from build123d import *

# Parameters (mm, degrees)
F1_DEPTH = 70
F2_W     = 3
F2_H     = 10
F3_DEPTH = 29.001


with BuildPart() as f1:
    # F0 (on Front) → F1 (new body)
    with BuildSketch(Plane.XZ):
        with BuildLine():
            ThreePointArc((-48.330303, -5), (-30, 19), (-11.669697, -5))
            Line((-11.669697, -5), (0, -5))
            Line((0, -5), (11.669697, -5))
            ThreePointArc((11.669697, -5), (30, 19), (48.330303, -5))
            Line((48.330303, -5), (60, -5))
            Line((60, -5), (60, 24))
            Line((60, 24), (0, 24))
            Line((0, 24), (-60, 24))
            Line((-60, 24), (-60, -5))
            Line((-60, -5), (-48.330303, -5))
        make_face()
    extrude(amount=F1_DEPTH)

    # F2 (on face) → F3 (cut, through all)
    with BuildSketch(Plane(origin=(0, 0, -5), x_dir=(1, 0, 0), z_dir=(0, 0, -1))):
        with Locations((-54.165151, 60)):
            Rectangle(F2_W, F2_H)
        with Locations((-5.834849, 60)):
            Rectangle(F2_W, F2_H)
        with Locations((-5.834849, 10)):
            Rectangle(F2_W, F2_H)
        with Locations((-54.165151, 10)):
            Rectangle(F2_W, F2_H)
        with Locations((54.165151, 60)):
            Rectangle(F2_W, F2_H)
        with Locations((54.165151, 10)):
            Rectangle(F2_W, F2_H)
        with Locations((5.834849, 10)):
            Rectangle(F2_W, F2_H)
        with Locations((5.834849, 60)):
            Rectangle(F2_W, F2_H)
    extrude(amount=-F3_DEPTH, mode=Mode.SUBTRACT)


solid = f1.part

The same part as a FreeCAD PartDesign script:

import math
import FreeCAD as App
import Part
import Sketcher
from FreeCAD import Vector


def add_polygon(sketch, points):
    """Adds a closed chain of lines whose ends are joined by coincident constraints."""
    first, n = sketch.GeometryCount, len(points)
    for a, b in zip(points, points[1:] + points[:1]):
        sketch.addGeometry(Part.LineSegment(App.Vector(*a, 0), App.Vector(*b, 0)), False)
    for i in range(n):
        sketch.addConstraint(Sketcher.Constraint("Coincident", first + i, 2, first + (i + 1) % n, 1))

doc = App.newDocument("Part")
params = doc.addObject("Spreadsheet::Sheet", "Params")
for row, (alias, value) in enumerate([
    ("sketch1_radius", "19 mm"),
    ("sketch1_width", "120 mm"),
    ("sketch1_height", "29 mm"),
    ("pad1_length", "70 mm"),
    ("sketch2_width", "3 mm"),
    ("sketch2_height", "10 mm"),
], start=1):
    params.set(f"A{row}", alias)
    params.set(f"B{row}", "=" + value)
    params.setAlias(f"B{row}", alias)

body = doc.addObject("PartDesign::Body", "Body")

sketch1 = body.newObject("Sketcher::SketchObject", "Sketch")
sketch1.AttachmentSupport = (doc.getObject("XZ_Plane"), [""])
sketch1.MapMode = "FlatFace"
sketch1.addGeometry([
    Part.ArcOfCircle(Part.Circle(Vector(-30, 0, 0), Vector(0, 0, 1), 19), math.radians(-15), math.radians(195)),
    Part.LineSegment(Vector(-12, -5, 0), Vector(12, -5, 0)),
    Part.ArcOfCircle(Part.Circle(Vector(30, 0, 0), Vector(0, 0, 1), 19), math.radians(-15), math.radians(195)),
    Part.LineSegment(Vector(48, -5, 0), Vector(60, -5, 0)),
    Part.LineSegment(Vector(60, -5, 0), Vector(60, 24, 0)),
    Part.LineSegment(Vector(60, 24, 0), Vector(-60, 24, 0)),
    Part.LineSegment(Vector(-60, 24, 0), Vector(-60, -5, 0)),
    Part.LineSegment(Vector(-60, -5, 0), Vector(-48, -5, 0)),
], False)
sketch1.addConstraint([
    Sketcher.Constraint("Coincident", 0, 1, 1, 1),
    Sketcher.Constraint("Coincident", 1, 2, 2, 2),
    Sketcher.Constraint("Coincident", 2, 1, 3, 1),
    Sketcher.Constraint("Coincident", 3, 2, 4, 1),
    Sketcher.Constraint("Coincident", 4, 2, 5, 1),
    Sketcher.Constraint("Coincident", 5, 2, 6, 1),
    Sketcher.Constraint("Coincident", 6, 2, 7, 1),
    Sketcher.Constraint("Coincident", 7, 2, 0, 2),
    Sketcher.Constraint("Horizontal", 1),
    Sketcher.Constraint("Horizontal", 3),
    Sketcher.Constraint("Vertical", 4),
    Sketcher.Constraint("Horizontal", 5),
    Sketcher.Constraint("Vertical", 6),
    Sketcher.Constraint("Horizontal", 7),
    Sketcher.Constraint("Equal", 0, 2),
    Sketcher.Constraint("Symmetric", 0, 3, 2, 3, -1, 1),
    Sketcher.Constraint("Symmetric", 3, 2, 6, 2, -2),
    Sketcher.Constraint("PointOnObject", 0, 3, -1),
    Sketcher.Constraint("Horizontal", 1, 2, 2, 1),
    Sketcher.Constraint("Radius", 0, 19.0),
    Sketcher.Constraint("DistanceX", 5, 2, 5, 1, 120.0),
    Sketcher.Constraint("DistanceY", 4, 1, 4, 2, 29.0),
    Sketcher.Constraint("DistanceX", 0, 3, -1, 1, 30.0),
    Sketcher.Constraint("DistanceY", 0, 1, -1, 1, 5.0),
])
sketch1.setExpression("Constraints[19]", "Params.sketch1_radius")
sketch1.setExpression("Constraints[20]", "Params.sketch1_width")
sketch1.setExpression("Constraints[21]", "Params.sketch1_height")
pad1 = body.newObject("PartDesign::Pad", "Pad")
pad1.Profile = sketch1
pad1.setExpression("Length", "Params.pad1_length")

sketch2 = body.newObject("Sketcher::SketchObject", "Sketch001")
sketch2.AttachmentSupport = (doc.getObject("XY_Plane"), [""])
sketch2.MapMode = "FlatFace"
sketch2.AttachmentOffset = App.Placement(Vector(0, 0, -5), App.Rotation())
add_polygon(sketch2, [(-55.7, -65), (-55.7, -55), (-52.7, -55), (-52.7, -65)])
add_polygon(sketch2, [(-7.3, -65), (-7.3, -55), (-4.3, -55), (-4.3, -65)])
add_polygon(sketch2, [(-7.3, -15), (-7.3, -5), (-4.3, -5), (-4.3, -15)])
add_polygon(sketch2, [(-55.7, -15), (-55.7, -5), (-52.7, -5), (-52.7, -15)])
add_polygon(sketch2, [(52.7, -65), (52.7, -55), (55.7, -55), (55.7, -65)])
add_polygon(sketch2, [(52.7, -15), (52.7, -5), (55.7, -5), (55.7, -15)])
add_polygon(sketch2, [(4.3, -15), (4.3, -5), (7.3, -5), (7.3, -15)])
add_polygon(sketch2, [(4.3, -65), (4.3, -55), (7.3, -55), (7.3, -65)])
sketch2.addConstraint([
    Sketcher.Constraint("Vertical", 0),
    Sketcher.Constraint("Horizontal", 1),
    Sketcher.Constraint("Vertical", 2),
    Sketcher.Constraint("Horizontal", 3),
    Sketcher.Constraint("Vertical", 4),
    Sketcher.Constraint("Horizontal", 5),
    Sketcher.Constraint("Vertical", 6),
    Sketcher.Constraint("Horizontal", 7),
    Sketcher.Constraint("Vertical", 8),
    Sketcher.Constraint("Horizontal", 9),
    Sketcher.Constraint("Vertical", 10),
    Sketcher.Constraint("Horizontal", 11),
    Sketcher.Constraint("Vertical", 12),
    Sketcher.Constraint("Horizontal", 13),
    Sketcher.Constraint("Vertical", 14),
    Sketcher.Constraint("Horizontal", 15),
    Sketcher.Constraint("Vertical", 16),
    Sketcher.Constraint("Horizontal", 17),
    Sketcher.Constraint("Vertical", 18),
    Sketcher.Constraint("Horizontal", 19),
    Sketcher.Constraint("Vertical", 20),
    Sketcher.Constraint("Horizontal", 21),
    Sketcher.Constraint("Vertical", 22),
    Sketcher.Constraint("Horizontal", 23),
    Sketcher.Constraint("Vertical", 24),
    Sketcher.Constraint("Horizontal", 25),
    Sketcher.Constraint("Vertical", 26),
    Sketcher.Constraint("Horizontal", 27),
    Sketcher.Constraint("Vertical", 28),
    Sketcher.Constraint("Horizontal", 29),
    Sketcher.Constraint("Vertical", 30),
    Sketcher.Constraint("Horizontal", 31),
    Sketcher.Constraint("Symmetric", 1, 2, 16, 2, -2),
    Sketcher.Constraint("Symmetric", 3, 2, 18, 2, -2),
    Sketcher.Constraint("Symmetric", 13, 2, 20, 2, -2),
    Sketcher.Constraint("Symmetric", 15, 2, 22, 2, -2),
    Sketcher.Constraint("Symmetric", 9, 2, 24, 2, -2),
    Sketcher.Constraint("Symmetric", 11, 2, 26, 2, -2),
    Sketcher.Constraint("Symmetric", 5, 2, 28, 2, -2),
    Sketcher.Constraint("Symmetric", 7, 2, 30, 2, -2),
    Sketcher.Constraint("Horizontal", 1, 2, 4, 2),
    Sketcher.Constraint("Horizontal", 3, 2, 6, 2),
    Sketcher.Constraint("Horizontal", 9, 2, 12, 2),
    Sketcher.Constraint("Horizontal", 11, 2, 14, 2),
    Sketcher.Constraint("Vertical", 7, 2, 8, 2),
    Sketcher.Constraint("Vertical", 6, 2, 9, 2),
    Sketcher.Constraint("Vertical", 3, 2, 12, 2),
    Sketcher.Constraint("Vertical", 2, 2, 13, 2),
    Sketcher.Constraint("Equal", 3, 5),
    Sketcher.Constraint("Equal", 6, 8),
    Sketcher.Constraint("DistanceX", 1, 1, 1, 2, 3.0),
    Sketcher.Constraint("DistanceY", 0, 1, 0, 2, 10.0),
    Sketcher.Constraint("DistanceY", 0, 2, -1, 1, 55.0),
    Sketcher.Constraint("DistanceY", 8, 2, -1, 1, 5.0),
    Sketcher.Constraint("DistanceX", 5, 2, 16, 2, 57.0),
    Sketcher.Constraint("DistanceX", 0, 2, -1, 1, 55.665151),
])
sketch2.setExpression("Constraints[82]", "Params.sketch2_width")
sketch2.setExpression("Constraints[83]", "Params.sketch2_height")
pocket1 = body.newObject("PartDesign::Pocket", "Pocket")
pocket1.Profile = sketch2
pocket1.Type = "ThroughAll"
pocket1.Reversed = True

doc.recompute()
